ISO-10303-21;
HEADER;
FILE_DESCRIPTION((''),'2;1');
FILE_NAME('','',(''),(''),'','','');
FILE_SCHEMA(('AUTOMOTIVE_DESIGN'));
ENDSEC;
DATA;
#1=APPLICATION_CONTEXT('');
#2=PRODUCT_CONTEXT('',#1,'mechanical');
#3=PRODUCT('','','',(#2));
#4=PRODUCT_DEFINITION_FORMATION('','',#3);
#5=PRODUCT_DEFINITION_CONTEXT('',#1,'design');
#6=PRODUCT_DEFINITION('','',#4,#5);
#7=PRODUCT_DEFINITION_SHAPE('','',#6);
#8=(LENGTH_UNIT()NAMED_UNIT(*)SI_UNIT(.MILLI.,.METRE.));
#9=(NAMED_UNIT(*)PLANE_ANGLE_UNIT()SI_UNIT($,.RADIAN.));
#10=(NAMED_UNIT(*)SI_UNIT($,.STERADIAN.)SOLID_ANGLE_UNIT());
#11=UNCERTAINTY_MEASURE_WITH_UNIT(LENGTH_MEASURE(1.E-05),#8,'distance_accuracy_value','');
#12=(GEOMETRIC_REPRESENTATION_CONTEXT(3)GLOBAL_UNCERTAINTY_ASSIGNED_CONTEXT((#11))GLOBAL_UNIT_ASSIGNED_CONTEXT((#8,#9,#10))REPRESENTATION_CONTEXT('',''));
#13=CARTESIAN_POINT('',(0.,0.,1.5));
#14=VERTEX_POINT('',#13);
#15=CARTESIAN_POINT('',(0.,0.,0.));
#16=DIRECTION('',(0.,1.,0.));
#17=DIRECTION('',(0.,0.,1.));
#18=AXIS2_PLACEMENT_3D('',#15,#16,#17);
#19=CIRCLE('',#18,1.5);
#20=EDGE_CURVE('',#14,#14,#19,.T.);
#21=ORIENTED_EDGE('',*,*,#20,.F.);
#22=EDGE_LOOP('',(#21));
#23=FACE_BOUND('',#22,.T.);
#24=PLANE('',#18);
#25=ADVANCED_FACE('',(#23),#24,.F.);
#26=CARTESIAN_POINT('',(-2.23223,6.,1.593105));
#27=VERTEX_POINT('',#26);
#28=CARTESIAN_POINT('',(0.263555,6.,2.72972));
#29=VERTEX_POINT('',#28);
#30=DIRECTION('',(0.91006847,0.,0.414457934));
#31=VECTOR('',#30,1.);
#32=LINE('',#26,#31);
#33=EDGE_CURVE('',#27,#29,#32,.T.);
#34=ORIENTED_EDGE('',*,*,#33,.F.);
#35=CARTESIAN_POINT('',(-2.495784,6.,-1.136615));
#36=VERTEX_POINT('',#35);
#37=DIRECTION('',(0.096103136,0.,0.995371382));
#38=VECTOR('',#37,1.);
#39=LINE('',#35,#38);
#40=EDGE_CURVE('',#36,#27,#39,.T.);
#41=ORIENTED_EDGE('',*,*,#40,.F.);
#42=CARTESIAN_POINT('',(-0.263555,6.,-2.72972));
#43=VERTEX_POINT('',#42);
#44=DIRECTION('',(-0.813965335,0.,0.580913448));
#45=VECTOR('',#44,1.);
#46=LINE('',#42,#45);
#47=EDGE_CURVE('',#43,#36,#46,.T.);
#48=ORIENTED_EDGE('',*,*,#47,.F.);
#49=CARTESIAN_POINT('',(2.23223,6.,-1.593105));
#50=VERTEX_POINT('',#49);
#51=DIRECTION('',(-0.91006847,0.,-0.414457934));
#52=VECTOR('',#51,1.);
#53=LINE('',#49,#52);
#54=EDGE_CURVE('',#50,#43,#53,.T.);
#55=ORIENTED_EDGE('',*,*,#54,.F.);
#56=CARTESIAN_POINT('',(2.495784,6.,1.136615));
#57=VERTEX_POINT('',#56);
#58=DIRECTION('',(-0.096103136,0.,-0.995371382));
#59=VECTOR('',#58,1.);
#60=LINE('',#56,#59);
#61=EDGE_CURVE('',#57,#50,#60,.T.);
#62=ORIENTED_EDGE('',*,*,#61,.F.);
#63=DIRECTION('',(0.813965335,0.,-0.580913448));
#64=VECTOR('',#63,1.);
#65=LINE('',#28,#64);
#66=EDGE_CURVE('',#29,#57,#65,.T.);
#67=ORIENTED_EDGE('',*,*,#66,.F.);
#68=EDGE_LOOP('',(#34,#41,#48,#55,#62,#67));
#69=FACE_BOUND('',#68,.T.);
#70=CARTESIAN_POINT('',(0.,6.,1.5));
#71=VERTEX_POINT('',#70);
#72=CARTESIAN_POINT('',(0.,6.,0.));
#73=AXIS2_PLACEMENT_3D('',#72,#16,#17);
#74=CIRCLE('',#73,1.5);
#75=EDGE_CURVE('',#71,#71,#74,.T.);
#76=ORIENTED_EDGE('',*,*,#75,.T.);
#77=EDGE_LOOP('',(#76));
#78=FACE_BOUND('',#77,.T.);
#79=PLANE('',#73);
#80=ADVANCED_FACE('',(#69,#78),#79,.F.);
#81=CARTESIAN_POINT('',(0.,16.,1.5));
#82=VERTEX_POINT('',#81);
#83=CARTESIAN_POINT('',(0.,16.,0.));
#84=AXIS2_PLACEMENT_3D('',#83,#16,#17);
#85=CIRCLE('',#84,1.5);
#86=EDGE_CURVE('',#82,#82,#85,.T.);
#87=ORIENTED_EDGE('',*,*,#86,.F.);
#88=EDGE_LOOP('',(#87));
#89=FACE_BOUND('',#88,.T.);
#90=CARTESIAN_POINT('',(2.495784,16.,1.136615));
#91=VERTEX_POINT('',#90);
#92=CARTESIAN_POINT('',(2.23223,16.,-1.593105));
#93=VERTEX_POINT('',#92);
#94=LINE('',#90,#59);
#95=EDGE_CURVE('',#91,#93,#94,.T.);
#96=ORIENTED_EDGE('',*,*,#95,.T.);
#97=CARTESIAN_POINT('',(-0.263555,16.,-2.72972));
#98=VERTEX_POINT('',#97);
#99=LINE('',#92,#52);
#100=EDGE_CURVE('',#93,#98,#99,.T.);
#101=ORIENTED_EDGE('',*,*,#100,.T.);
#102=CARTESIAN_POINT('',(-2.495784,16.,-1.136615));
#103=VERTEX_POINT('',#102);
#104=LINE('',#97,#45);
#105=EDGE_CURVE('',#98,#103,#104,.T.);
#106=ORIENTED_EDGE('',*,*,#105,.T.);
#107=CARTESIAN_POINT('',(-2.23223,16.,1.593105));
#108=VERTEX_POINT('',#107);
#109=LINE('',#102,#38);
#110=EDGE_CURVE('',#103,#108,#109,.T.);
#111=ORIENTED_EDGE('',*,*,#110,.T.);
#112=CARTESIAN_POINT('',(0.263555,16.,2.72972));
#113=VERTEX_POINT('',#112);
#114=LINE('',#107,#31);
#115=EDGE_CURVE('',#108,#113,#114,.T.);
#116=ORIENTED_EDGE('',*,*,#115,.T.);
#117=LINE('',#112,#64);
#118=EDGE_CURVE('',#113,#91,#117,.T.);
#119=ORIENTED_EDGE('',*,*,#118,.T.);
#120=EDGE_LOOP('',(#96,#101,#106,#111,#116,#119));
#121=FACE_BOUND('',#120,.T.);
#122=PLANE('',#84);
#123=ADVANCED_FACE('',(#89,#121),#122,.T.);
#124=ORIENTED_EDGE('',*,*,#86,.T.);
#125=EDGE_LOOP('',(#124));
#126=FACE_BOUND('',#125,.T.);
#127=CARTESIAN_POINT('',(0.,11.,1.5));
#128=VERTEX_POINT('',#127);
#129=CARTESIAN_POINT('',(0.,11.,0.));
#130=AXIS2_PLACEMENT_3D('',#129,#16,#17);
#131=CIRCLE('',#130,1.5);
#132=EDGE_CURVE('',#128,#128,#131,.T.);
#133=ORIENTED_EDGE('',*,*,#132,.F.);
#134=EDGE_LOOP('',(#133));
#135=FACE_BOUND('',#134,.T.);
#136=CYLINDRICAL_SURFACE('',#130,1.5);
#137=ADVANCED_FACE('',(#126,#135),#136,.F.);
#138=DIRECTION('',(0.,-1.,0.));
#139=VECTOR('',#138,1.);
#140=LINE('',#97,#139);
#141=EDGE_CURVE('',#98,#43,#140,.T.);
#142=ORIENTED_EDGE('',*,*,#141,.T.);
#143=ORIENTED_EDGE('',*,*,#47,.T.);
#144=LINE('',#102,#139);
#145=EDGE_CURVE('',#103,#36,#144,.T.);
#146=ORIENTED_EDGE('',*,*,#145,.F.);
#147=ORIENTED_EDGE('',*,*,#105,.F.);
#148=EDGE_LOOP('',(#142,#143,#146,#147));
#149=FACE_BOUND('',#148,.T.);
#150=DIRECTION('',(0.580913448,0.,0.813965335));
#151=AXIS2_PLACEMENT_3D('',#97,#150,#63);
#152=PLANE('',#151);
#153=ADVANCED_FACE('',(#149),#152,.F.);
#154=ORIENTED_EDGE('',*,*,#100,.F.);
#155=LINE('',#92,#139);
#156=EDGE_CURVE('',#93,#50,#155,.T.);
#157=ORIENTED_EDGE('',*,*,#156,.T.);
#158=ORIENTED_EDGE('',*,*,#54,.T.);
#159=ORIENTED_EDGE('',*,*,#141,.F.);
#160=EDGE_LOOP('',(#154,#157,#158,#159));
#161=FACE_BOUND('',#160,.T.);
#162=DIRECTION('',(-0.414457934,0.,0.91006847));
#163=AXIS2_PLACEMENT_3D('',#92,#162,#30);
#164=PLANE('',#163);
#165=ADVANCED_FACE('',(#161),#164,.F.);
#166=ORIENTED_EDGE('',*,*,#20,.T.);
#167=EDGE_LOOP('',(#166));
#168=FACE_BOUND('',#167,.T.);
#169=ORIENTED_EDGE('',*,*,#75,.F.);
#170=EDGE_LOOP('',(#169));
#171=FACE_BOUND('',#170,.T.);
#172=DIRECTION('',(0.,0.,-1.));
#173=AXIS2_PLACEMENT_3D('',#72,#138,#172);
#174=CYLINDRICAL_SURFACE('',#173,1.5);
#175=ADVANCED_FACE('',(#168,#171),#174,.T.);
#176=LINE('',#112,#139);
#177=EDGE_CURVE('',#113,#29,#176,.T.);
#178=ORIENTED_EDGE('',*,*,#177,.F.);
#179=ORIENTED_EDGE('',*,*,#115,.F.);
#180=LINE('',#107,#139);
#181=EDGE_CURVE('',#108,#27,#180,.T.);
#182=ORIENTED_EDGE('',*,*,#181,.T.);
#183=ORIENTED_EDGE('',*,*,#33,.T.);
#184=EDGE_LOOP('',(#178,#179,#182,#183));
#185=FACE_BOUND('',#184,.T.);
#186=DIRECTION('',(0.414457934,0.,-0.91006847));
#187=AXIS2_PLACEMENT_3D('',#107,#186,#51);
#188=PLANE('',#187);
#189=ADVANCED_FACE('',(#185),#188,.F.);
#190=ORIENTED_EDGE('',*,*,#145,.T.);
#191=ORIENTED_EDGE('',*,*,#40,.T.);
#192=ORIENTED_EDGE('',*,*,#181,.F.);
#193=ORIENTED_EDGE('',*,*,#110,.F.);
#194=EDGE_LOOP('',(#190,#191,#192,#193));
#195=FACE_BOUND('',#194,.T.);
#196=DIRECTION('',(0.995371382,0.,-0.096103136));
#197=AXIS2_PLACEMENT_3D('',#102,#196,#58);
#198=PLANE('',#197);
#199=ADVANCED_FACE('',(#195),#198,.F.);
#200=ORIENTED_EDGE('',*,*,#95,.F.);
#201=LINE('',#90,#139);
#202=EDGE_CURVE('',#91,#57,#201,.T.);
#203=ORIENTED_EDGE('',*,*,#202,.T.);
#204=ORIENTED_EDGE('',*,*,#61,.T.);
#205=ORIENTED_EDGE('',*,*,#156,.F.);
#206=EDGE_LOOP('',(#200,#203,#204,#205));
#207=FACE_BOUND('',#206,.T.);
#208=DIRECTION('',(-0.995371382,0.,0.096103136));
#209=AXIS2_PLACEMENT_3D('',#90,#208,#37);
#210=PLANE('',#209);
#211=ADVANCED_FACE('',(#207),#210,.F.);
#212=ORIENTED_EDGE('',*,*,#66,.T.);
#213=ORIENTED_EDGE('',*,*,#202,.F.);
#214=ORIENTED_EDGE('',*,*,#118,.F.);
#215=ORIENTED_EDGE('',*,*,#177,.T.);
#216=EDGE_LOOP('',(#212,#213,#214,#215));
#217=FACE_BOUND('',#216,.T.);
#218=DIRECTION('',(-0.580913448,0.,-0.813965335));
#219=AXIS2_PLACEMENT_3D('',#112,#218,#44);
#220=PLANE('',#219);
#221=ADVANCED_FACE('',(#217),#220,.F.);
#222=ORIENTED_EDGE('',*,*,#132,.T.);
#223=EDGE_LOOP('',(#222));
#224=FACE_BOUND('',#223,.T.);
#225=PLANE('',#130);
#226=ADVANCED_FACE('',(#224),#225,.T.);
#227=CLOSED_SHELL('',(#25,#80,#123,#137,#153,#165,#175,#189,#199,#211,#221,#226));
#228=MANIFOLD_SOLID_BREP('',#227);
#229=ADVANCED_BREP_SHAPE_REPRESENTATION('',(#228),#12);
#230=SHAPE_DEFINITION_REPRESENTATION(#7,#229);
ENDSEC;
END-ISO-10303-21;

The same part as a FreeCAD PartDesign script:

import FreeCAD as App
import Part
import Sketcher

doc = App.newDocument("Part")
params = doc.addObject("Spreadsheet::Sheet", "Params")
for row, (alias, value) in enumerate([
    ("sketch1_diameter", "3 mm"),
    ("pad1_length", "6 mm"),
    ("pad2_length", "10 mm"),
    ("sketch3_diameter", "3 mm"),
    ("pocket1_length", "5 mm"),
], start=1):
    params.set(f"A{row}", alias)
    params.set(f"B{row}", "=" + value)
    params.setAlias(f"B{row}", alias)

body = doc.addObject("PartDesign::Body", "Body")

# Sketch on XZ plane
sketch1 = body.newObject("Sketcher::SketchObject", "Sketch")
sketch1.AttachmentSupport = (doc.getObject("XZ_Plane"), [""])
sketch1.MapMode = "FlatFace"
sketch1.addGeometry(Part.Circle(App.Vector(0, 0, 0), App.Vector(0, 0, 1), 1.5), False)
sketch1.addConstraint([
    Sketcher.Constraint("Coincident", 0, 3, -1, 1),
    Sketcher.Constraint("Diameter", 0, 3.0),
])
sketch1.setExpression("Constraints[1]", "Params.sketch1_diameter")
pad1 = body.newObject("PartDesign::Pad", "Pad")
pad1.Profile = sketch1
pad1.setExpression("Length", "Params.pad1_length")
pad1.Reversed = True

# Sketch on XZ plane
sketch2 = body.newObject("Sketcher::SketchObject", "Sketch001")
sketch2.AttachmentSupport = (doc.getObject("XZ_Plane"), [""])
sketch2.MapMode = "FlatFace"
sketch2.AttachmentOffset = App.Placement(App.Vector(0, 0, -6), App.Rotation())
sketch2.addGeometry([
    Part.LineSegment(App.Vector(2.5, 1.1, 0), App.Vector(2.2, -1.6, 0)),  # 0
    Part.LineSegment(App.Vector(2.2, -1.6, 0), App.Vector(-0.3, -2.7, 0)),  # 1
    Part.LineSegment(App.Vector(-0.3, -2.7, 0), App.Vector(-2.5, -1.1, 0)),  # 2
    Part.LineSegment(App.Vector(-2.5, -1.1, 0), App.Vector(-2.2, 1.6, 0)),  # 3
    Part.LineSegment(App.Vector(-2.2, 1.6, 0), App.Vector(0.3, 2.7, 0)),  # 4
    Part.LineSegment(App.Vector(0.3, 2.7, 0), App.Vector(2.5, 1.1, 0)),  # 5
], False)
sketch2.addConstraint([
    Sketcher.Constraint("Coincident", 0, 2, 1, 1),
    Sketcher.Constraint("Coincident", 1, 2, 2, 1),
    Sketcher.Constraint("Coincident", 2, 2, 3, 1),
    Sketcher.Constraint("Coincident", 3, 2, 4, 1),
    Sketcher.Constraint("Coincident", 4, 2, 5, 1),
    Sketcher.Constraint("Coincident", 5, 2, 0, 1),
    Sketcher.Constraint("Symmetric", 0, 2, 3, 2, -1, 1),
    Sketcher.Constraint("Symmetric", 1, 2, 4, 2, -1, 1),
    Sketcher.Constraint("Symmetric", 2, 2, 5, 2, -1, 1),
    Sketcher.Constraint("Equal", 0, 1),
    Sketcher.Constraint("Equal", 1, 2),
    Sketcher.Constraint("DistanceX", -1, 1, 0, 2, 2.23223),
    Sketcher.Constraint("DistanceY", 1, 2, -1, 1, 2.72972),
    Sketcher.Constraint("DistanceX", 2, 2, 1, 2, 2.23223),
    Sketcher.Constraint("DistanceY", 0, 2, 2, 2, 0.45649),
])
pad2 = body.newObject("PartDesign::Pad", "Pad001")
pad2.Profile = sketch2
pad2.setExpression("Length", "Params.pad2_length")
pad2.Reversed = True

# Sketch on XZ plane
sketch3 = body.newObject("Sketcher::SketchObject", "Sketch002")
sketch3.AttachmentSupport = (doc.getObject("XZ_Plane"), [""])
sketch3.MapMode = "FlatFace"
sketch3.AttachmentOffset = App.Placement(App.Vector(0, 0, -11), App.Rotation())
sketch3.addGeometry(Part.Circle(App.Vector(0, 0, 0), App.Vector(0, 0, 1), 1.5), False)
sketch3.addConstraint([
    Sketcher.Constraint("Coincident", 0, 3, -1, 1),
    Sketcher.Constraint("Diameter", 0, 3.0),
])
sketch3.setExpression("Constraints[1]", "Params.sketch3_diameter")
pocket1 = body.newObject("PartDesign::Pocket", "Pocket")
pocket1.Profile = sketch3
pocket1.setExpression("Length", "Params.pocket1_length")

doc.recompute()
